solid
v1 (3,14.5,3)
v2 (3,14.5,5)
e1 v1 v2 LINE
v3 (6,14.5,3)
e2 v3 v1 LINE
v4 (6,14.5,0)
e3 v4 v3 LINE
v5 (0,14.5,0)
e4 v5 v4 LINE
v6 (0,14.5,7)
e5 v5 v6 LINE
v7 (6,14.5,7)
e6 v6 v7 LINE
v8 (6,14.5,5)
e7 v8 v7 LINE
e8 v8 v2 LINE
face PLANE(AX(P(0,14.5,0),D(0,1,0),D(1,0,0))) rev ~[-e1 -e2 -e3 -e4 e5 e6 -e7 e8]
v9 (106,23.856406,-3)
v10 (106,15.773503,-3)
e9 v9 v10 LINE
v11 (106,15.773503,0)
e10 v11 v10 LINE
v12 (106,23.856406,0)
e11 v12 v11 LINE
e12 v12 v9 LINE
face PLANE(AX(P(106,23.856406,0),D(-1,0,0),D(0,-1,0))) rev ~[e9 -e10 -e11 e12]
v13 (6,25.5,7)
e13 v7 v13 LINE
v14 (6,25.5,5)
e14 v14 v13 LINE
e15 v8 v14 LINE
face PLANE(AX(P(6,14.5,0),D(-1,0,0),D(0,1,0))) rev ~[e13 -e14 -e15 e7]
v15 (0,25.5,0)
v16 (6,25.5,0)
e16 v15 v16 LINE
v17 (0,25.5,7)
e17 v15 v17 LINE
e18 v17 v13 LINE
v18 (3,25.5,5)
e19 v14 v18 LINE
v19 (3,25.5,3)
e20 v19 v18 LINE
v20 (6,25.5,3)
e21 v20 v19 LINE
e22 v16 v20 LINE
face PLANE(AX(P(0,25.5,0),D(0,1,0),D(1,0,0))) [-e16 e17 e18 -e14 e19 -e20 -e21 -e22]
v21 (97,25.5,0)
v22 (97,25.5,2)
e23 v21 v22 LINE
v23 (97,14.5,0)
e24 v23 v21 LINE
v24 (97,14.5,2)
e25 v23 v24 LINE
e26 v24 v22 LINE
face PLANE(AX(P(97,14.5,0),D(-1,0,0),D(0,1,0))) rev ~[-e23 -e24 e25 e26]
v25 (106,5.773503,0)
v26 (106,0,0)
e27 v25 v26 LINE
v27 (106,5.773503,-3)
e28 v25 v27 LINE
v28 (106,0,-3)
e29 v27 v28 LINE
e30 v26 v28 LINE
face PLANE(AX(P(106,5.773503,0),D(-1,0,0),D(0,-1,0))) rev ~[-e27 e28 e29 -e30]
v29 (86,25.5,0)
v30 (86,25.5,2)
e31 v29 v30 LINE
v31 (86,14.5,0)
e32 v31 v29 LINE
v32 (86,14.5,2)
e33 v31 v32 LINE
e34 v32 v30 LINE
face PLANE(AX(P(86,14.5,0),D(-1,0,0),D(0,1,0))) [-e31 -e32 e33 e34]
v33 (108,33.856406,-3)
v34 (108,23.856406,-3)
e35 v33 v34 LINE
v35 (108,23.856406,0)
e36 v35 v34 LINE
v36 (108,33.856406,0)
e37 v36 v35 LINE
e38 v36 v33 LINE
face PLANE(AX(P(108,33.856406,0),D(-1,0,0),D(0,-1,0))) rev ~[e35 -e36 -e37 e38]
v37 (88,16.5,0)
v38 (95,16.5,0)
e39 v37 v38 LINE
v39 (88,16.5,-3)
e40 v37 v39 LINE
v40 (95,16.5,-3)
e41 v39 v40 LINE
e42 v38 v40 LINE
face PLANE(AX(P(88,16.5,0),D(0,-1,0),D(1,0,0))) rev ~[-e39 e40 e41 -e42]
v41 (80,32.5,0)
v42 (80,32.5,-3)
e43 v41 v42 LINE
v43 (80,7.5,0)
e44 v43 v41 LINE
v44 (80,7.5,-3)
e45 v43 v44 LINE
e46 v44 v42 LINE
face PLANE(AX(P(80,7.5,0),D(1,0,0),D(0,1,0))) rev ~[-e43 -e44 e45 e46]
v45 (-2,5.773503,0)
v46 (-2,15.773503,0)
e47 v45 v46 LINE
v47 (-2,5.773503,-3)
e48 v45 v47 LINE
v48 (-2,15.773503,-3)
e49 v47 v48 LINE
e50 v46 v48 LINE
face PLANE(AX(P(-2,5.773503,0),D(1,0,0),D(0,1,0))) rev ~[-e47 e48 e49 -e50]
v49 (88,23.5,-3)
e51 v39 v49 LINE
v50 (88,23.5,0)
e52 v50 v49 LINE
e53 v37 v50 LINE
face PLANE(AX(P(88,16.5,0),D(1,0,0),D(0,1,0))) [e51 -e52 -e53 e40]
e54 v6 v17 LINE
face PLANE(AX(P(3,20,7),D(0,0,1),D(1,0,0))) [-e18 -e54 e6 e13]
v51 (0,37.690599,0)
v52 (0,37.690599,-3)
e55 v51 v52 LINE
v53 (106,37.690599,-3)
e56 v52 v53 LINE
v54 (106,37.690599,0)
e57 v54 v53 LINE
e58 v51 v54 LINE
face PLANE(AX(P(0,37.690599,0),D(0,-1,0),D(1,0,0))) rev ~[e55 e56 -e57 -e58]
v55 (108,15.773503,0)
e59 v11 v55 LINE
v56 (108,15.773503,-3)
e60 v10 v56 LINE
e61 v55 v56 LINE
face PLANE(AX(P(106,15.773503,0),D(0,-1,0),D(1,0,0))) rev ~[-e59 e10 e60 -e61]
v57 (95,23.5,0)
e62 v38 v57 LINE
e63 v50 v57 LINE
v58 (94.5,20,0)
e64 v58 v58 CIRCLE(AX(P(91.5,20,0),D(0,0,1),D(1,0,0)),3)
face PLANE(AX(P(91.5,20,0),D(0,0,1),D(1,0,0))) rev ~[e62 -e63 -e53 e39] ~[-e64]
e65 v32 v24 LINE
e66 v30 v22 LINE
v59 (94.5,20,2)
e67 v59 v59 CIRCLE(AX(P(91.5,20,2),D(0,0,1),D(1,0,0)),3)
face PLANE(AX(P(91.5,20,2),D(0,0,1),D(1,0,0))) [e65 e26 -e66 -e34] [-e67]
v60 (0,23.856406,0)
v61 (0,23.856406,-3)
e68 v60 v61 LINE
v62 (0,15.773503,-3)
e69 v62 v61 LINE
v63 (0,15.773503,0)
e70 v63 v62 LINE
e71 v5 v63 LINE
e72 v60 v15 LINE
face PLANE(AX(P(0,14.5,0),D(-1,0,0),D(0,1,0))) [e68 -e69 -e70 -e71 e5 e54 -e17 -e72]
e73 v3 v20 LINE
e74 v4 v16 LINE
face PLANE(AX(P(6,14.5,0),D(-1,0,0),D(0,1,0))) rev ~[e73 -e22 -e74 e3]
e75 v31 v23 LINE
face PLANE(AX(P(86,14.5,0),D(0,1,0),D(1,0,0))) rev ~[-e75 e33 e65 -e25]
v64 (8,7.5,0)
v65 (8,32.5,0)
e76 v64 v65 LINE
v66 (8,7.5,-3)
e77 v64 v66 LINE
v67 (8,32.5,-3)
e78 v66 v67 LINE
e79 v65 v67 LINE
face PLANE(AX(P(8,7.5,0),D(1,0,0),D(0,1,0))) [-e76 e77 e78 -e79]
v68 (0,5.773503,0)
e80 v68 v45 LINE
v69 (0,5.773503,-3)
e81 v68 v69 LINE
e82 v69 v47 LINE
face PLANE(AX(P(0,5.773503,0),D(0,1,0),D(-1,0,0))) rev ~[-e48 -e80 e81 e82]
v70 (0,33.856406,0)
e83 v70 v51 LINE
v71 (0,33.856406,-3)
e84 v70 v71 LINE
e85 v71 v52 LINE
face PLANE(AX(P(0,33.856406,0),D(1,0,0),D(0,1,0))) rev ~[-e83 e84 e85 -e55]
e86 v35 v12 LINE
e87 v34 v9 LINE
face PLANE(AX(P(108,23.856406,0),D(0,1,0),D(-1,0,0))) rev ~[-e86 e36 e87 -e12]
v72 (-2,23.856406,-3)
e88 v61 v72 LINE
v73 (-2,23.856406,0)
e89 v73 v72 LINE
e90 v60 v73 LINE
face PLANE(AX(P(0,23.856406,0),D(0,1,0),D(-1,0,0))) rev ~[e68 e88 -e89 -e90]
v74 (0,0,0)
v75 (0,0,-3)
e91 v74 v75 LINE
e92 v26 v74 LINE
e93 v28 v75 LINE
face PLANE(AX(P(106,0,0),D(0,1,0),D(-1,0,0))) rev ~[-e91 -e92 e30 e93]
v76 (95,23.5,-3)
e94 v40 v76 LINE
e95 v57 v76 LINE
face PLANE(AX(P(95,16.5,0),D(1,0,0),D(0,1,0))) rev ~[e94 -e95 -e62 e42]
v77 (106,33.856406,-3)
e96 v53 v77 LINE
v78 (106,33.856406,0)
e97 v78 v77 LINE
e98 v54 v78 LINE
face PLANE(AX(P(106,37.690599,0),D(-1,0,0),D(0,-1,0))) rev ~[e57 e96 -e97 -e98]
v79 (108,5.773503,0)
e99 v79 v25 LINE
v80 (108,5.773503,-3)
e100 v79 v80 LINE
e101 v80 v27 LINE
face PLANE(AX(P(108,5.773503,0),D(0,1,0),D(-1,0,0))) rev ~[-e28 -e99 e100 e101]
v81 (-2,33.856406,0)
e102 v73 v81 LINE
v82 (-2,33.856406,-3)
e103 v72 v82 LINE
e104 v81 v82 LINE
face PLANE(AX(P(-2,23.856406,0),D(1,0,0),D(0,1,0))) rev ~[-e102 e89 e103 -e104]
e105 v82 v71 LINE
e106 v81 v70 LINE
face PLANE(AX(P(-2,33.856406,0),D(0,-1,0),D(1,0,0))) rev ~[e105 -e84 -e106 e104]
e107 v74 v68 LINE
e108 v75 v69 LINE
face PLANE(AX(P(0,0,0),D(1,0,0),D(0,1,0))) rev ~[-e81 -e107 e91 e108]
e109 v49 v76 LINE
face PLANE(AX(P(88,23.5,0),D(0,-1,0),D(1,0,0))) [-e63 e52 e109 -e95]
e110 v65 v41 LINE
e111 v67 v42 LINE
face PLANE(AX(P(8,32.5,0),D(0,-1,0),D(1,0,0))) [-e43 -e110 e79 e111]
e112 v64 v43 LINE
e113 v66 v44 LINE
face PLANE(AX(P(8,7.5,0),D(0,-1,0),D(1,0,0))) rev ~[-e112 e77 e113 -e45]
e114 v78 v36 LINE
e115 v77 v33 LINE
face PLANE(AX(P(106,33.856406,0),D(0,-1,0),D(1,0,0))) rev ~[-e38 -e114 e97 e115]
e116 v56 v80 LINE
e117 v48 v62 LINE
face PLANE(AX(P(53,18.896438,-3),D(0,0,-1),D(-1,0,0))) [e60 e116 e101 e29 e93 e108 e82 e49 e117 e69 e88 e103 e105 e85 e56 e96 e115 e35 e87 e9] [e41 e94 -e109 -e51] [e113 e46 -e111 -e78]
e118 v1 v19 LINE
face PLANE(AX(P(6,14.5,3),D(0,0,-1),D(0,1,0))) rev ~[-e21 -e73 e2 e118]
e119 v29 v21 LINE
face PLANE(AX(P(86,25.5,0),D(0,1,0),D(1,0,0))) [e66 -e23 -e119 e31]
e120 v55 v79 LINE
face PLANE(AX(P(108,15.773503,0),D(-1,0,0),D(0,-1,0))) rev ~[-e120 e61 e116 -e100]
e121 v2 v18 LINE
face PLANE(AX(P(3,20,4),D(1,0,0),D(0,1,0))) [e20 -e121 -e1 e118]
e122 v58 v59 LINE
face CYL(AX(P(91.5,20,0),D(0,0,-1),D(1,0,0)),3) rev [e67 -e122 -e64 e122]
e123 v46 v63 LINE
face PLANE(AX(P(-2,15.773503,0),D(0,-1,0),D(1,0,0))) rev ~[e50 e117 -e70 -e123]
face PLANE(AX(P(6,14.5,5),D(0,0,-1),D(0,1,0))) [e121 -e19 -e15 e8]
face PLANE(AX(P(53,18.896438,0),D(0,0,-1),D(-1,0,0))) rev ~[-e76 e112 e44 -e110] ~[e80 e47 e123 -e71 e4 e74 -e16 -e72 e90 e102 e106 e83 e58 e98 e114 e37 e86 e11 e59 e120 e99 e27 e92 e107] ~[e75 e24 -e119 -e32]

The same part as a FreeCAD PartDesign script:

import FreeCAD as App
import Part
import Sketcher

doc = App.newDocument("Part")
params = doc.addObject("Spreadsheet::Sheet", "Params")
for row, (alias, value) in enumerate([
    ("sketch1_width", "106 mm"),
    ("sketch1_width2", "2 mm"),
    ("sketch1_height", "10 mm"),
    ("pad1_length", "3 mm"),
    ("sketch2_width", "7 mm"),
    ("pocket1_length", "3 mm"),
    ("sketch3_diameter", "6 mm"),
    ("sketch3_width", "11 mm"),
    ("pad2_length", "2 mm"),
    ("sketch4_width", "72 mm"),
    ("sketch4_height", "25 mm"),
    ("pocket2_length", "3 mm"),
    ("sketch5_width", "6 mm"),
    ("sketch5_height", "11 mm"),
    ("pad3_length", "7 mm"),
    ("sketch6_width", "11 mm"),
    ("sketch6_height", "2 mm"),
    ("pocket3_length", "3 mm"),
], start=1):
    params.set(f"A{row}", alias)
    params.set(f"B{row}", "=" + value)
    params.setAlias(f"B{row}", alias)

body = doc.addObject("PartDesign::Body", "Body")

# Sketch on XY plane
sketch1 = body.newObject("Sketcher::SketchObject", "Sketch")
sketch1.AttachmentSupport = (doc.getObject("XY_Plane"), [""])
sketch1.MapMode = "FlatFace"
sketch1.addGeometry(Part.LineSegment(App.Vector(106, 37.7, 0), App.Vector(0, 37.7, 0)), False)
sketch1.addGeometry(Part.LineSegment(App.Vector(0, 37.7, 0), App.Vector(0, 33.9, 0)), False)
sketch1.addGeometry(Part.LineSegment(App.Vector(0, 33.9, 0), App.Vector(-2, 33.9, 0)), False)
sketch1.addGeometry(Part.LineSegment(App.Vector(-2, 33.9, 0), App.Vector(-2, 23.9, 0)), False)
sketch1.addGeometry(Part.LineSegment(App.Vector(-2, 23.9, 0), App.Vector(0, 23.9, 0)), False)
sketch1.addGeometry(Part.LineSegment(App.Vector(0, 23.9, 0), App.Vector(0, 15.8, 0)), False)
sketch1.addGeometry(Part.LineSegment(App.Vector(0, 15.8, 0), App.Vector(-2, 15.8, 0)), False)
sketch1.addGeometry(Part.LineSegment(App.Vector(-2, 15.8, 0), App.Vector(-2, 5.8, 0)), False)
sketch1.addGeometry(Part.LineSegment(App.Vector(-2, 5.8, 0), App.Vector(0, 5.8, 0)), False)
sketch1.addGeometry(Part.LineSegment(App.Vector(0, 5.8, 0), App.Vector(0, 0, 0)), False)
sketch1.addGeometry(Part.LineSegment(App.Vector(0, 0, 0), App.Vector(106, 0, 0)), False)
sketch1.addGeometry(Part.LineSegment(App.Vector(106, 0, 0), App.Vector(106, 5.8, 0)), False)
sketch1.addGeometry(Part.LineSegment(App.Vector(106, 5.8, 0), App.Vector(108, 5.8, 0)), False)
sketch1.addGeometry(Part.LineSegment(App.Vector(108, 5.8, 0), App.Vector(108, 15.8, 0)), False)
sketch1.addGeometry(Part.LineSegment(App.Vector(108, 15.8, 0), App.Vector(106, 15.8, 0)), False)
sketch1.addGeometry(Part.LineSegment(App.Vector(106, 15.8, 0), App.Vector(106, 23.9, 0)), False)
sketch1.addGeometry(Part.LineSegment(App.Vector(106, 23.9, 0), App.Vector(108, 23.9, 0)), False)
sketch1.addGeometry(Part.LineSegment(App.Vector(108, 23.9, 0), App.Vector(108, 33.9, 0)), False)
sketch1.addGeometry(Part.LineSegment(App.Vector(108, 33.9, 0), App.Vector(106, 33.9, 0)), False)
sketch1.addGeometry(Part.LineSegment(App.Vector(106, 33.9, 0), App.Vector(106, 37.7, 0)), False)
sketch1.addConstraint(Sketcher.Constraint("Coincident", 0, 2, 1, 1))
sketch1.addConstraint(Sketcher.Constraint("Coincident", 1, 2, 2, 1))
sketch1.addConstraint(Sketcher.Constraint("Coincident", 2, 2, 3, 1))
sketch1.addConstraint(Sketcher.Constraint("Coincident", 3, 2, 4, 1))
sketch1.addConstraint(Sketcher.Constraint("Coincident", 4, 2, 5, 1))
sketch1.addConstraint(Sketcher.Constraint("Coincident", 5, 2, 6, 1))
sketch1.addConstraint(Sketcher.Constraint("Coincident", 6, 2, 7, 1))
sketch1.addConstraint(Sketcher.Constraint("Coincident", 7, 2, 8, 1))
sketch1.addConstraint(Sketcher.Constraint("Coincident", 8, 2, 9, 1))
sketch1.addConstraint(Sketcher.Constraint("Coincident", 9, 2, 10, 1))
sketch1.addConstraint(Sketcher.Constraint("Coincident", 10, 2, 11, 1))
sketch1.addConstraint(Sketcher.Constraint("Coincident", 11, 2, 12, 1))
sketch1.addConstraint(Sketcher.Constraint("Coincident", 12, 2, 13, 1))
sketch1.addConstraint(Sketcher.Constraint("Coincident", 13, 2, 14, 1))
sketch1.addConstraint(Sketcher.Constraint("Coincident", 14, 2, 15, 1))
sketch1.addConstraint(Sketcher.Constraint("Coincident", 15, 2, 16, 1))
sketch1.addConstraint(Sketcher.Constraint("Coincident", 16, 2, 17, 1))
sketch1.addConstraint(Sketcher.Constraint("Coincident", 17, 2, 18, 1))
sketch1.addConstraint(Sketcher.Constraint("Coincident", 18, 2, 19, 1))
sketch1.addConstraint(Sketcher.Constraint("Coincident", 19, 2, 0, 1))
sketch1.addConstraint(Sketcher.Constraint("Horizontal", 0))
sketch1.addConstraint(Sketcher.Constraint("Vertical", 1))
sketch1.addConstraint(Sketcher.Constraint("Horizontal", 2))
sketch1.addConstraint(Sketcher.Constraint("Vertical", 3))
sketch1.addConstraint(Sketcher.Constraint("Horizontal", 4))
sketch1.addConstraint(Sketcher.Constraint("Vertical", 5))
sketch1.addConstraint(Sketcher.Constraint("Horizontal", 6))
sketch1.addConstraint(Sketcher.Constraint("Vertical", 7))
sketch1.addConstraint(Sketcher.Constraint("Horizontal", 8))
sketch1.addConstraint(Sketcher.Constraint("Vertical", 9))
sketch1.addConstraint(Sketcher.Constraint("Horizontal", 10))
sketch1.addConstraint(Sketcher.Constraint("Vertical", 11))
sketch1.addConstraint(Sketcher.Constraint("Horizontal", 12))
sketch1.addConstraint(Sketcher.Constraint("Vertical", 13))
sketch1.addConstraint(Sketcher.Constraint("Horizontal", 14))
sketch1.addConstraint(Sketcher.Constraint("Vertical", 15))
sketch1.addConstraint(Sketcher.Constraint("Horizontal", 16))
sketch1.addConstraint(Sketcher.Constraint("Vertical", 17))
sketch1.addConstraint(Sketcher.Constraint("Horizontal", 18))
sketch1.addConstraint(Sketcher.Constraint("Vertical", 19))
sketch1.addConstraint(Sketcher.Constraint("Coincident", 9, 2, -1, 1))
sketch1.addConstraint(Sketcher.Constraint("PointOnObject", 0, 2, -2))
sketch1.addConstraint(Sketcher.Constraint("PointOnObject", 4, 2, -2))
sketch1.addConstraint(Sketcher.Constraint("Horizontal", 8, 2, 11, 2))
sketch1.addConstraint(Sketcher.Constraint("Horizontal", 6, 2, 13, 2))
sketch1.addConstraint(Sketcher.Constraint("Horizontal", 4, 2, 15, 2))
sketch1.addConstraint(Sketcher.Constraint("Horizontal", 2, 2, 17, 2))
sketch1.addConstraint(Sketcher.Constraint("Vertical", 3, 2, 6, 2))
sketch1.addConstraint(Sketcher.Constraint("Vertical", 11, 2, 14, 2))
sketch1.addConstraint(Sketcher.Constraint("Vertical", 13, 2, 16, 2))
sketch1.addConstraint(Sketcher.Constraint("Vertical", 15, 2, 18, 2))
sketch1.addConstraint(Sketcher.Constraint("Equal", 8, 12))
sketch1.addConstraint(Sketcher.Constraint("Equal", 3, 7))
sketch1.addConstraint(Sketcher.Constraint("DistanceX", 0, 2, 0, 1, 106.0))
sketch1.addConstraint(Sketcher.Constraint("DistanceX", 2, 2, 2, 1, 2.0))
sketch1.addConstraint(Sketcher.Constraint("DistanceY", 3, 2, 3, 1, 10.0))
sketch1.addConstraint(Sketcher.Constraint("DistanceY", -1, 1, 0, 2, 37.690599))
sketch1.addConstraint(Sketcher.Constraint("DistanceY", 1, 2, 1, 1, 3.834193))
sketch1.addConstraint(Sketcher.Constraint("DistanceY", 5, 2, 5, 1, 8.082903))
sketch1.setExpression("Constraints[53]", "Params.sketch1_width")
sketch1.setExpression("Constraints[54]", "Params.sketch1_width2")
sketch1.setExpression("Constraints[55]", "Params.sketch1_height")
pad1 = body.newObject("PartDesign::Pad", "Pad")
pad1.Profile = sketch1
pad1.setExpression("Length", "Params.pad1_length")
pad1.Reversed = True

# Sketch on XY plane
sketch2 = body.newObject("Sketcher::SketchObject", "Sketch001")
sketch2.AttachmentSupport = (doc.getObject("XY_Plane"), [""])
sketch2.MapMode = "FlatFace"
sketch2.addGeometry(Part.LineSegment(App.Vector(88, 24, 0), App.Vector(88, 16, 0)), False)
sketch2.addGeometry(Part.LineSegment(App.Vector(88, 16, 0), App.Vector(95, 16, 0)), False)
sketch2.addGeometry(Part.LineSegment(App.Vector(95, 16, 0), App.Vector(95, 24, 0)), False)
sketch2.addGeometry(Part.LineSegment(App.Vector(95, 24, 0), App.Vector(88, 24, 0)), False)
sketch2.addConstraint(Sketcher.Constraint("Coincident", 0, 2, 1, 1))
sketch2.addConstraint(Sketcher.Constraint("Coincident", 1, 2, 2, 1))
sketch2.addConstraint(Sketcher.Constraint("Coincident", 2, 2, 3, 1))
sketch2.addConstraint(Sketcher.Constraint("Coincident", 3, 2, 0, 1))
sketch2.addConstraint(Sketcher.Constraint("Vertical", 0))
sketch2.addConstraint(Sketcher.Constraint("Horizontal", 1))
sketch2.addConstraint(Sketcher.Constraint("Vertical", 2))
sketch2.addConstraint(Sketcher.Constraint("Horizontal", 3))
sketch2.addConstraint(Sketcher.Constraint("Equal", 3, 0))
sketch2.addConstraint(Sketcher.Constraint("DistanceX", 1, 1, 1, 2, 7.0))
sketch2.addConstraint(Sketcher.Constraint("DistanceX", -1, 1, 0, 2, 88.0))
sketch2.addConstraint(Sketcher.Constraint("DistanceY", -1, 1, 0, 2, 16.5))
sketch2.setExpression("Constraints[9]", "Params.sketch2_width")
pocket1 = body.newObject("PartDesign::Pocket", "Pocket")
pocket1.Profile = sketch2
pocket1.setExpression("Length", "Params.pocket1_length")

# Sketch on XY plane
sketch3 = body.newObject("Sketcher::SketchObject", "Sketch002")
sketch3.AttachmentSupport = (doc.getObject("XY_Plane"), [""])
sketch3.MapMode = "FlatFace"
sketch3.addGeometry(Part.LineSegment(App.Vector(86, 25.5, 0), App.Vector(86, 14.5, 0)), False)
sketch3.addGeometry(Part.LineSegment(App.Vector(86, 14.5, 0), App.Vector(97, 14.5, 0)), False)
sketch3.addGeometry(Part.LineSegment(App.Vector(97, 14.5, 0), App.Vector(97, 25.5, 0)), False)
sketch3.addGeometry(Part.LineSegment(App.Vector(97, 25.5, 0), App.Vector(86, 25.5, 0)), False)
sketch3.addGeometry(Part.Circle(App.Vector(91.5, 20, 0), App.Vector(0, 0, 1), 3), False)
sketch3.addConstraint(Sketcher.Constraint("Coincident", 0, 2, 1, 1))
sketch3.addConstraint(Sketcher.Constraint("Coincident", 1, 2, 2, 1))
sketch3.addConstraint(Sketcher.Constraint("Coincident", 2, 2, 3, 1))
sketch3.addConstraint(Sketcher.Constraint("Coincident", 3, 2, 0, 1))
sketch3.addConstraint(Sketcher.Constraint("Vertical", 0))
sketch3.addConstraint(Sketcher.Constraint("Horizontal", 1))
sketch3.addConstraint(Sketcher.Constraint("Vertical", 2))
sketch3.addConstraint(Sketcher.Constraint("Horizontal", 3))
sketch3.addConstraint(Sketcher.Constraint("Equal", 3, 0))
sketch3.addConstraint(Sketcher.Constraint("Diameter", 4, 6.0))
sketch3.addConstraint(Sketcher.Constraint("DistanceX", 1, 1, 1, 2, 11.0))
sketch3.addConstraint(Sketcher.Constraint("DistanceY", -1, 1, 4, 3, 20.0))
sketch3.addConstraint(Sketcher.Constraint("DistanceX", -1, 1, 0, 2, 86.0))
sketch3.addConstraint(Sketcher.Constraint("DistanceX", -1, 1, 4, 3, 91.5))
sketch3.addConstraint(Sketcher.Constraint("DistanceY", -1, 1, 0, 2, 14.5))
sketch3.setExpression("Constraints[9]", "Params.sketch3_diameter")
sketch3.setExpression("Constraints[10]", "Params.sketch3_width")
pad2 = body.newObject("PartDesign::Pad", "Pad001")
pad2.Profile = sketch3
pad2.setExpression("Length", "Params.pad2_length")

# Sketch on XY plane
sketch4 = body.newObject("Sketcher::SketchObject", "Sketch003")
sketch4.AttachmentSupport = (doc.getObject("XY_Plane"), [""])
sketch4.MapMode = "FlatFace"
sketch4.addGeometry(Part.LineSegment(App.Vector(8, 32, 0), App.Vector(8, 8, 0)), False)
sketch4.addGeometry(Part.LineSegment(App.Vector(8, 8, 0), App.Vector(80, 8, 0)), False)
sketch4.addGeometry(Part.LineSegment(App.Vector(80, 8, 0), App.Vector(80, 32, 0)), False)
sketch4.addGeometry(Part.LineSegment(App.Vector(80, 32, 0), App.Vector(8, 32, 0)), False)
sketch4.addConstraint(Sketcher.Constraint("Coincident", 0, 2, 1, 1))
sketch4.addConstraint(Sketcher.Constraint("Coincident", 1, 2, 2, 1))
sketch4.addConstraint(Sketcher.Constraint("Coincident", 2, 2, 3, 1))
sketch4.addConstraint(Sketcher.Constraint("Coincident", 3, 2, 0, 1))
sketch4.addConstraint(Sketcher.Constraint("Vertical", 0))
sketch4.addConstraint(Sketcher.Constraint("Horizontal", 1))
sketch4.addConstraint(Sketcher.Constraint("Vertical", 2))
sketch4.addConstraint(Sketcher.Constraint("Horizontal", 3))
sketch4.addConstraint(Sketcher.Constraint("DistanceX", 1, 1, 1, 2, 72.0))
sketch4.addConstraint(Sketcher.Constraint("DistanceY", 0, 2, 0, 1, 25.0))
sketch4.addConstraint(Sketcher.Constraint("DistanceX", -1, 1, 0, 2, 8.0))
sketch4.addConstraint(Sketcher.Constraint("DistanceY", -1, 1, 0, 2, 7.5))
sketch4.setExpression("Constraints[8]", "Params.sketch4_width")
sketch4.setExpression("Constraints[9]", "Params.sketch4_height")
pocket2 = body.newObject("PartDesign::Pocket", "Pocket001")
pocket2.Profile = sketch4
pocket2.setExpression("Length", "Params.pocket2_length")

# Sketch on XY plane
sketch5 = body.newObject("Sketcher::SketchObject", "Sketch004")
sketch5.AttachmentSupport = (doc.getObject("XY_Plane"), [""])
sketch5.MapMode = "FlatFace"
sketch5.addGeometry(Part.LineSegment(App.Vector(0, 26, 0), App.Vector(0, 14, 0)), False)
sketch5.addGeometry(Part.LineSegment(App.Vector(0, 14, 0), App.Vector(6, 14, 0)), False)
sketch5.addGeometry(Part.LineSegment(App.Vector(6, 14, 0), App.Vector(6, 26, 0)), False)
sketch5.addGeometry(Part.LineSegment(App.Vector(6, 26, 0), App.Vector(0, 26, 0)), False)
sketch5.addConstraint(Sketcher.Constraint("Coincident", 0, 2, 1, 1))
sketch5.addConstraint(Sketcher.Constraint("Coincident", 1, 2, 2, 1))
sketch5.addConstraint(Sketcher.Constraint("Coincident", 2, 2, 3, 1))
sketch5.addConstraint(Sketcher.Constraint("Coincident", 3, 2, 0, 1))
sketch5.addConstraint(Sketcher.Constraint("Vertical", 0))
sketch5.addConstraint(Sketcher.Constraint("Horizontal", 1))
sketch5.addConstraint(Sketcher.Constraint("Vertical", 2))
sketch5.addConstraint(Sketcher.Constraint("Horizontal", 3))
sketch5.addConstraint(Sketcher.Constraint("PointOnObject", 0, 2, -2))
sketch5.addConstraint(Sketcher.Constraint("DistanceX", 1, 1, 1, 2, 6.0))
sketch5.addConstraint(Sketcher.Constraint("DistanceY", 0, 2, 0, 1, 11.0))
sketch5.addConstraint(Sketcher.Constraint("DistanceY", -1, 1, 0, 2, 14.5))
sketch5.setExpression("Constraints[9]", "Params.sketch5_width")
sketch5.setExpression("Constraints[10]", "Params.sketch5_height")
pad3 = body.newObject("PartDesign::Pad", "Pad002")
pad3.Profile = sketch5
pad3.setExpression("Length", "Params.pad3_length")

# Sketch on YZ plane
sketch6 = body.newObject("Sketcher::SketchObject", "Sketch005")
sketch6.AttachmentSupport = (doc.getObject("YZ_Plane"), [""])
sketch6.MapMode = "FlatFace"
sketch6.AttachmentOffset = App.Placement(App.Vector(0, 0, 6), App.Rotation())
sketch6.addGeometry(Part.LineSegment(App.Vector(14.5, 5, 0), App.Vector(14.5, 3, 0)), False)
sketch6.addGeometry(Part.LineSegment(App.Vector(14.5, 3, 0), App.Vector(25.5, 3, 0)), False)
sketch6.addGeometry(Part.LineSegment(App.Vector(25.5, 3, 0), App.Vector(25.5, 5, 0)), False)
sketch6.addGeometry(Part.LineSegment(App.Vector(25.5, 5, 0), App.Vector(14.5, 5, 0)), False)
sketch6.addConstraint(Sketcher.Constraint("Coincident", 0, 2, 1, 1))
sketch6.addConstraint(Sketcher.Constraint("Coincident", 1, 2, 2, 1))
sketch6.addConstraint(Sketcher.Constraint("Coincident", 2, 2, 3, 1))
sketch6.addConstraint(Sketcher.Constraint("Coincident", 3, 2, 0, 1))
sketch6.addConstraint(Sketcher.Constraint("Vertical", 0))
sketch6.addConstraint(Sketcher.Constraint("Horizontal", 1))
sketch6.addConstraint(Sketcher.Constraint("Vertical", 2))
sketch6.addConstraint(Sketcher.Constraint("Horizontal", 3))
sketch6.addConstraint(Sketcher.Constraint("DistanceX", 1, 1, 1, 2, 11.0))
sketch6.addConstraint(Sketcher.Constraint("DistanceY", 0, 2, 0, 1, 2.0))
sketch6.addConstraint(Sketcher.Constraint("DistanceY", -1, 1, 0, 2, 3.0))
sketch6.addConstraint(Sketcher.Constraint("DistanceX", -1, 1, 0, 2, 14.5))
sketch6.setExpression("Constraints[8]", "Params.sketch6_width")
sketch6.setExpression("Constraints[9]", "Params.sketch6_height")
pocket3 = body.newObject("PartDesign::Pocket", "Pocket002")
pocket3.Profile = sketch6
pocket3.setExpression("Length", "Params.pocket3_length")

doc.recompute()
